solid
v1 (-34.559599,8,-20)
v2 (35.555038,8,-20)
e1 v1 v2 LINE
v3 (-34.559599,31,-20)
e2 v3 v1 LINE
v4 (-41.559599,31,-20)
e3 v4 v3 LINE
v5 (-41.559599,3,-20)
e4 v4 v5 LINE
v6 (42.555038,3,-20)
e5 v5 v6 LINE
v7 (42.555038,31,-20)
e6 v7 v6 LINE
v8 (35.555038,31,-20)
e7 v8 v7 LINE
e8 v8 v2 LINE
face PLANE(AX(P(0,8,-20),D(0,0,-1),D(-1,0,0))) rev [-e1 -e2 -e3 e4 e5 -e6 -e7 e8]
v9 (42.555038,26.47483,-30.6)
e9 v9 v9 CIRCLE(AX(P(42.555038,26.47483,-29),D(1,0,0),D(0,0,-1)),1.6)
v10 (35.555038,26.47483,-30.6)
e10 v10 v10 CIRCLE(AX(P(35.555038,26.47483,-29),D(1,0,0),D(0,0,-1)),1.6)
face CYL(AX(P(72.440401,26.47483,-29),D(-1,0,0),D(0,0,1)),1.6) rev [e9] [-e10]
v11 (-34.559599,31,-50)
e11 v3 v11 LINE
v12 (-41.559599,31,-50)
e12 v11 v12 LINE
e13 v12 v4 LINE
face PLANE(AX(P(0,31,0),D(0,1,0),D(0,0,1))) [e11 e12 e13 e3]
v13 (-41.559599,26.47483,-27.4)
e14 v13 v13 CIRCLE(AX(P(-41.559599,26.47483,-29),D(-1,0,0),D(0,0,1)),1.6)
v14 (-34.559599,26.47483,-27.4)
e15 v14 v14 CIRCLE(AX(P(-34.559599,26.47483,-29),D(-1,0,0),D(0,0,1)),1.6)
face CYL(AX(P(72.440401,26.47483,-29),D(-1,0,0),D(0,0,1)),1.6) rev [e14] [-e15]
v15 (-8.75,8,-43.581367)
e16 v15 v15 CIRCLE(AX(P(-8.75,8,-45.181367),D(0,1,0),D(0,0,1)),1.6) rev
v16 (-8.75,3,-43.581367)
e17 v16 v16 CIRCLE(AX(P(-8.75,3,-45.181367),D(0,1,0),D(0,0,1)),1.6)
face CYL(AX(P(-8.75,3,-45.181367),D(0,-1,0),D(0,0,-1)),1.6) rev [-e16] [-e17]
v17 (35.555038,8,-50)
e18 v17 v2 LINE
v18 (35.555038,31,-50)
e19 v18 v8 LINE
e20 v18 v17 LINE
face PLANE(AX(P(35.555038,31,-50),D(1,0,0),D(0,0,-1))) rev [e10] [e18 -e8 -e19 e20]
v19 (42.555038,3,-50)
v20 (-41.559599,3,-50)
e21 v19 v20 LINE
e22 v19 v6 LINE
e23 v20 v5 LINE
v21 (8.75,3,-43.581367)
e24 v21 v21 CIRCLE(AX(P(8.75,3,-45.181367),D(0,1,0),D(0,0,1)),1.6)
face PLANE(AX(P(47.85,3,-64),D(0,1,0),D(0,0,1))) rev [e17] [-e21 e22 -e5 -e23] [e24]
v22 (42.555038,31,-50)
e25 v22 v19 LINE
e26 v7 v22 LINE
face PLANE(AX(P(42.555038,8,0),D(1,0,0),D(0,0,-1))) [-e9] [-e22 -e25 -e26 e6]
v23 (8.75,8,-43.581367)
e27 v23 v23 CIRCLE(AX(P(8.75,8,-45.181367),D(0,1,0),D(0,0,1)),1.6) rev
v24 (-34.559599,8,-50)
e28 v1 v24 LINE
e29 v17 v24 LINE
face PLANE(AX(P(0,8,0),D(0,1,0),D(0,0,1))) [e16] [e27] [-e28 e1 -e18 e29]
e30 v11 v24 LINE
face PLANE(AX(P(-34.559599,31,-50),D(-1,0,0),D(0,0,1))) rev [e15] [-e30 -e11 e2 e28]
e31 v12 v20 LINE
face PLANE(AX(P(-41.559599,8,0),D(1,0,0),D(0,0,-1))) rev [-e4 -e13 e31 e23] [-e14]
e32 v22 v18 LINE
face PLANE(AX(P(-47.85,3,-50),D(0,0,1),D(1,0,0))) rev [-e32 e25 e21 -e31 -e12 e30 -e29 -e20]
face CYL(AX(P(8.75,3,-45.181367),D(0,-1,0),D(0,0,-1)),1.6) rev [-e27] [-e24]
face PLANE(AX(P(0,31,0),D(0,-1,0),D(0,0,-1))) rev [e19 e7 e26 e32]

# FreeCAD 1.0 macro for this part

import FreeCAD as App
import Part
import Sketcher
from FreeCAD import Vector
Q = App.Units.Quantity


def add_polygon(sketch, points):
    """Adds a closed chain of lines whose ends are joined by coincident constraints."""
    first, n = sketch.GeometryCount, len(points)
    for a, b in zip(points, points[1:] + points[:1]):
        sketch.addGeometry(Part.LineSegment(App.Vector(*a, 0), App.Vector(*b, 0)), False)
    for i in range(n):
        sketch.addConstraint(Sketcher.Constraint("Coincident", first + i, 2, first + (i + 1) % n, 1))

doc = App.newDocument("Part")
body = doc.addObject("PartDesign::Body", "Body")

# Sketch on XZ plane
sketch1 = body.newObject("Sketcher::SketchObject", "Sketch")
sketch1.AttachmentSupport = (doc.getObject("XZ_Plane"), [""])
sketch1.MapMode = "FlatFace"
add_polygon(sketch1, [(-47.9, -50), (-47.9, 50), (47.9, 50), (47.9, -50)])  # lines 0-3
sketch1.addGeometry(Part.Circle(Vector(0, 46, 0), Vector(0, 0, 1), 1.6), False)  # 4
sketch1.addGeometry(Part.Circle(Vector(-8.8, -45.2, 0), Vector(0, 0, 1), 1.6), False)  # 5
sketch1.addGeometry(Part.Circle(Vector(8.8, -45.2, 0), Vector(0, 0, 1), 1.6), False)  # 6
sketch1.addConstraint(Sketcher.Constraint("Vertical", 0))
sketch1.addConstraint(Sketcher.Constraint("Horizontal", 1))
sketch1.addConstraint(Sketcher.Constraint("Vertical", 2))
sketch1.addConstraint(Sketcher.Constraint("Horizontal", 3))
sketch1.addConstraint(Sketcher.Constraint("Equal", 4, 5))
sketch1.addConstraint(Sketcher.Constraint("Equal", 5, 6))
sketch1.addConstraint(Sketcher.Constraint("Symmetric", 0, 2, 2, 2, -1, 1))
sketch1.addConstraint(Sketcher.Constraint("Symmetric", 5, 3, 6, 3, -2))
sketch1.addConstraint(Sketcher.Constraint("PointOnObject", 4, 3, -2))
sketch1.addConstraint(Sketcher.Constraint("Diameter", 4, Q("3.2 mm")))
sketch1.addConstraint(Sketcher.Constraint("DistanceY", 0, 1, 0, 2, Q("100 mm")))
sketch1.addConstraint(Sketcher.Constraint("DistanceX", 1, 1, 1, 2, Q("95.7 mm")))
sketch1.addConstraint(Sketcher.Constraint("DistanceY", -1, 1, 4, 3, Q("46 mm")))
sketch1.addConstraint(Sketcher.Constraint("DistanceX", 5, 3, 6, 3, Q("17.5 mm")))
sketch1.addConstraint(Sketcher.Constraint("DistanceY", 5, 3, -1, 1, Q("45.181367 mm")))
pad1 = body.newObject("PartDesign::Pad", "Pad")
pad1.Profile = sketch1
pad1.Length = 6
pad1.Midplane = True

# Sketch on XZ plane
sketch2 = body.newObject("Sketcher::SketchObject", "Sketch001")
sketch2.AttachmentSupport = (doc.getObject("XZ_Plane"), [""])
sketch2.MapMode = "FlatFace"
sketch2.AttachmentOffset = App.Placement(Vector(0, 0, -3), App.Rotation())
add_polygon(sketch2, [(-41.6, -50), (-41.6, -20), (42.6, -20), (42.6, -50)])  # lines 0-3
sketch2.addGeometry(Part.Circle(Vector(-8.8, -45.2, 0), Vector(0, 0, 1), 1.6), False)  # 4
sketch2.addGeometry(Part.Circle(Vector(8.8, -45.2, 0), Vector(0, 0, 1), 1.6), False)  # 5
sketch2.addConstraint(Sketcher.Constraint("Vertical", 0))
sketch2.addConstraint(Sketcher.Constraint("Horizontal", 1))
sketch2.addConstraint(Sketcher.Constraint("Vertical", 2))
sketch2.addConstraint(Sketcher.Constraint("Horizontal", 3))
sketch2.addConstraint(Sketcher.Constraint("Equal", 4, 5))
sketch2.addConstraint(Sketcher.Constraint("Symmetric", 4, 3, 5, 3, -2))
sketch2.addConstraint(Sketcher.Constraint("Diameter", 4, Q("3.2 mm")))
sketch2.addConstraint(Sketcher.Constraint("DistanceY", 0, 1, 0, 2, Q("30 mm")))
sketch2.addConstraint(Sketcher.Constraint("DistanceY", 0, 2, -1, 1, Q("20 mm")))
sketch2.addConstraint(Sketcher.Constraint("DistanceX", 4, 3, 5, 3, Q("17.5 mm")))
sketch2.addConstraint(Sketcher.Constraint("DistanceX", 0, 2, -1, 1, Q("41.559599 mm")))
sketch2.addConstraint(Sketcher.Constraint("DistanceX", 1, 1, 1, 2, Q("84.114637 mm")))
sketch2.addConstraint(Sketcher.Constraint("DistanceY", 4, 3, -1, 1, Q("45.181367 mm")))
pad2 = body.newObject("PartDesign::Pad", "Pad001")
pad2.Profile = sketch2
pad2.Length = 5
pad2.Reversed = True

# Sketch on XZ plane
sketch3 = body.newObject("Sketcher::SketchObject", "Sketch002")
sketch3.AttachmentSupport = (doc.getObject("XZ_Plane"), [""])
sketch3.MapMode = "FlatFace"
sketch3.AttachmentOffset = App.Placement(Vector(0, 0, -8), App.Rotation())
add_polygon(sketch3, [(-42, -50), (-42, -20), (-35, -20), (-35, -50)])  # lines 0-3
add_polygon(sketch3, [(36, -50), (36, -20), (43, -20), (43, -50)])  # lines 4-7
sketch3.addConstraint(Sketcher.Constraint("Vertical", 0))
sketch3.addConstraint(Sketcher.Constraint("Horizontal", 1))
sketch3.addConstraint(Sketcher.Constraint("Vertical", 2))
sketch3.addConstraint(Sketcher.Constraint("Horizontal", 3))
sketch3.addConstraint(Sketcher.Constraint("Vertical", 4))
sketch3.addConstraint(Sketcher.Constraint("Horizontal", 5))
sketch3.addConstraint(Sketcher.Constraint("Vertical", 6))
sketch3.addConstraint(Sketcher.Constraint("Horizontal", 7))
sketch3.addConstraint(Sketcher.Constraint("Horizontal", 1, 2, 4, 2))
sketch3.addConstraint(Sketcher.Constraint("Horizontal", 3, 2, 6, 2))
sketch3.addConstraint(Sketcher.Constraint("Equal", 3, 5))
sketch3.addConstraint(Sketcher.Constraint("DistanceX", 1, 1, 1, 2, Q("7 mm")))
sketch3.addConstraint(Sketcher.Constraint("DistanceY", 0, 1, 0, 2, Q("30 mm")))
sketch3.addConstraint(Sketcher.Constraint("DistanceY", 0, 2, -1, 1, Q("20 mm")))
sketch3.addConstraint(Sketcher.Constraint("DistanceX", 0, 2, -1, 1, Q("41.559599 mm")))
sketch3.addConstraint(Sketcher.Constraint("DistanceX", -1, 1, 4, 2, Q("35.555038 mm")))
pad3 = body.newObject("PartDesign::Pad", "Pad002")
pad3.Profile = sketch3
pad3.Length = 23
pad3.Reversed = True

# Sketch on YZ plane
sketch4 = body.newObject("Sketcher::SketchObject", "Sketch003")
sketch4.AttachmentSupport = (doc.getObject("YZ_Plane"), [""])
sketch4.MapMode = "FlatFace"
sketch4.AttachmentOffset = App.Placement(Vector(0, 0, -41.559599), App.Rotation())
sketch4.addGeometry(Part.Circle(Vector(26.5, -29, 0), Vector(0, 0, 1), 1.6), False)
sketch4.addConstraint(Sketcher.Constraint("Diameter", 0, Q("3.2 mm")))
sketch4.addConstraint(Sketcher.Constraint("DistanceY", 0, 3, -1, 1, Q("29 mm")))
sketch4.addConstraint(Sketcher.Constraint("DistanceX", -1, 1, 0, 3, Q("26.47483 mm")))
pocket1 = body.newObject("PartDesign::Pocket", "Pocket")
pocket1.Profile = sketch4
pocket1.Length = 114
pocket1.Reversed = True

# Sketch on XY plane
sketch5 = body.newObject("Sketcher::SketchObject", "Sketch004")
sketch5.AttachmentSupport = (doc.getObject("XY_Plane"), [""])
sketch5.MapMode = "FlatFace"
sketch5.AttachmentOffset = App.Placement(Vector(0, 0, 50), App.Rotation())
add_polygon(sketch5, [(-48, 3), (-48, -3), (48, -3), (48, 3)])  # lines 0-3
sketch5.addConstraint(Sketcher.Constraint("Vertical", 0))
sketch5.addConstraint(Sketcher.Constraint("Horizontal", 1))
sketch5.addConstraint(Sketcher.Constraint("Vertical", 2))
sketch5.addConstraint(Sketcher.Constraint("Horizontal", 3))
sketch5.addConstraint(Sketcher.Constraint("Symmetric", 0, 2, 2, 2, -1, 1))
sketch5.addConstraint(Sketcher.Constraint("DistanceY", 0, 2, 0, 1, Q("6 mm")))
sketch5.addConstraint(Sketcher.Constraint("DistanceX", 1, 1, 1, 2, Q("95.7 mm")))
pocket2 = body.newObject("PartDesign::Pocket", "Pocket001")
pocket2.Profile = sketch5
pocket2.Length = 114

doc.recompute()
